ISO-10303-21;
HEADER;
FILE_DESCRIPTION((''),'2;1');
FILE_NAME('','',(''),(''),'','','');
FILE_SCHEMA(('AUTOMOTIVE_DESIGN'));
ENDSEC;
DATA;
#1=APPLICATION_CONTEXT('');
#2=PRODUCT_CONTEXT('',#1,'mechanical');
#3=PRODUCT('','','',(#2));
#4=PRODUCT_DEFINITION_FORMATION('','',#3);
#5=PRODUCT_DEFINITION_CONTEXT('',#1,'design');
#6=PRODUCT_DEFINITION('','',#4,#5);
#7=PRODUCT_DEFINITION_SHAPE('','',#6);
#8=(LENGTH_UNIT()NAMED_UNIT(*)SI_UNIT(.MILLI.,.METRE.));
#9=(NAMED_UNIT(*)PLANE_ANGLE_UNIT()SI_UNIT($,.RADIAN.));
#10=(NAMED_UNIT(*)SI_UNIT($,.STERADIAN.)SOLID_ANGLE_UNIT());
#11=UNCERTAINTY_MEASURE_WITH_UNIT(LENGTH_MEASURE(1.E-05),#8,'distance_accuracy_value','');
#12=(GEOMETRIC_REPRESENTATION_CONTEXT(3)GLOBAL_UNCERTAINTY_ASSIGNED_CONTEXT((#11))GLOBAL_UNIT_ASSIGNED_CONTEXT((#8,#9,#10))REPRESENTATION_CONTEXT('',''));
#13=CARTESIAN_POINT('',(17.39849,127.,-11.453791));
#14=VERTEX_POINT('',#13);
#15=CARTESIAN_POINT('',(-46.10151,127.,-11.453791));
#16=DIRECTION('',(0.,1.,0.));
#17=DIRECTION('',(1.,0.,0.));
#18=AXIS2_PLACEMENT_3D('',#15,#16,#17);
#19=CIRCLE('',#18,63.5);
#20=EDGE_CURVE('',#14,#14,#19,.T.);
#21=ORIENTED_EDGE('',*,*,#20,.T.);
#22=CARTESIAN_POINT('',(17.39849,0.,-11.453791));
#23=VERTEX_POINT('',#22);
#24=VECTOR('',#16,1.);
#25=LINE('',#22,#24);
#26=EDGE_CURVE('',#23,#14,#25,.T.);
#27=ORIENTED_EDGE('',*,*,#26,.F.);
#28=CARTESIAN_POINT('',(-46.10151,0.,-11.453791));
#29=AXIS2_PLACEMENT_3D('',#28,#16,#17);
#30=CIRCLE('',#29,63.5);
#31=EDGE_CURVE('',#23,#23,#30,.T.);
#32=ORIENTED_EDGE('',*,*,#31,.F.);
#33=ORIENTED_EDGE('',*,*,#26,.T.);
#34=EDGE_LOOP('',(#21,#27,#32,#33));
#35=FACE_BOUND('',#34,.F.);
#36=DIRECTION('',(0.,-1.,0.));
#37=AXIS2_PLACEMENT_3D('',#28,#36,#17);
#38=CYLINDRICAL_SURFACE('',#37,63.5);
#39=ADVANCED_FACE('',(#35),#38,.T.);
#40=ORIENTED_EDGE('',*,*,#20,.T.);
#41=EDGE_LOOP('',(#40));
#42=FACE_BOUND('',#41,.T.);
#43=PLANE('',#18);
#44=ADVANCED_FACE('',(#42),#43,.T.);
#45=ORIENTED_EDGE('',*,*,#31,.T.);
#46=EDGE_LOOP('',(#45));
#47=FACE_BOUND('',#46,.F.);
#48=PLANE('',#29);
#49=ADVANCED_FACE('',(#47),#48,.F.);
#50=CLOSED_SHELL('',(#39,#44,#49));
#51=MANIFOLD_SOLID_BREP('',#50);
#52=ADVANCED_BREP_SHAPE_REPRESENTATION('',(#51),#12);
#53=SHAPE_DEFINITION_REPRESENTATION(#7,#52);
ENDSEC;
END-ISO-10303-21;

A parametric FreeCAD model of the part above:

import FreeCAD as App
import Part
import Sketcher
Q = App.Units.Quantity

doc = App.newDocument("Part")
body = doc.addObject("PartDesign::Body", "Body")

# Sketch on XZ plane
sketch1 = body.newObject("Sketcher::SketchObject", "Sketch")
sketch1.AttachmentSupport = (doc.getObject("XZ_Plane"), [""])
sketch1.MapMode = "FlatFace"
sketch1.addGeometry(Part.Circle(App.Vector(-46, -11, 0), App.Vector(0, 0, 1), 64), False)
sketch1.addConstraint([
    Sketcher.Constraint("Diameter", 0, Q("5 in")),
    Sketcher.Constraint("DistanceX", 0, 3, -1, 1, Q("46.10151 mm")),
    Sketcher.Constraint("DistanceY", 0, 3, -1, 1, Q("11.453791 mm")),
])
pad1 = body.newObject("PartDesign::Pad", "Pad")
pad1.Profile = sketch1
pad1.Length = Q("5 in")
pad1.Reversed = True

doc.recompute()
